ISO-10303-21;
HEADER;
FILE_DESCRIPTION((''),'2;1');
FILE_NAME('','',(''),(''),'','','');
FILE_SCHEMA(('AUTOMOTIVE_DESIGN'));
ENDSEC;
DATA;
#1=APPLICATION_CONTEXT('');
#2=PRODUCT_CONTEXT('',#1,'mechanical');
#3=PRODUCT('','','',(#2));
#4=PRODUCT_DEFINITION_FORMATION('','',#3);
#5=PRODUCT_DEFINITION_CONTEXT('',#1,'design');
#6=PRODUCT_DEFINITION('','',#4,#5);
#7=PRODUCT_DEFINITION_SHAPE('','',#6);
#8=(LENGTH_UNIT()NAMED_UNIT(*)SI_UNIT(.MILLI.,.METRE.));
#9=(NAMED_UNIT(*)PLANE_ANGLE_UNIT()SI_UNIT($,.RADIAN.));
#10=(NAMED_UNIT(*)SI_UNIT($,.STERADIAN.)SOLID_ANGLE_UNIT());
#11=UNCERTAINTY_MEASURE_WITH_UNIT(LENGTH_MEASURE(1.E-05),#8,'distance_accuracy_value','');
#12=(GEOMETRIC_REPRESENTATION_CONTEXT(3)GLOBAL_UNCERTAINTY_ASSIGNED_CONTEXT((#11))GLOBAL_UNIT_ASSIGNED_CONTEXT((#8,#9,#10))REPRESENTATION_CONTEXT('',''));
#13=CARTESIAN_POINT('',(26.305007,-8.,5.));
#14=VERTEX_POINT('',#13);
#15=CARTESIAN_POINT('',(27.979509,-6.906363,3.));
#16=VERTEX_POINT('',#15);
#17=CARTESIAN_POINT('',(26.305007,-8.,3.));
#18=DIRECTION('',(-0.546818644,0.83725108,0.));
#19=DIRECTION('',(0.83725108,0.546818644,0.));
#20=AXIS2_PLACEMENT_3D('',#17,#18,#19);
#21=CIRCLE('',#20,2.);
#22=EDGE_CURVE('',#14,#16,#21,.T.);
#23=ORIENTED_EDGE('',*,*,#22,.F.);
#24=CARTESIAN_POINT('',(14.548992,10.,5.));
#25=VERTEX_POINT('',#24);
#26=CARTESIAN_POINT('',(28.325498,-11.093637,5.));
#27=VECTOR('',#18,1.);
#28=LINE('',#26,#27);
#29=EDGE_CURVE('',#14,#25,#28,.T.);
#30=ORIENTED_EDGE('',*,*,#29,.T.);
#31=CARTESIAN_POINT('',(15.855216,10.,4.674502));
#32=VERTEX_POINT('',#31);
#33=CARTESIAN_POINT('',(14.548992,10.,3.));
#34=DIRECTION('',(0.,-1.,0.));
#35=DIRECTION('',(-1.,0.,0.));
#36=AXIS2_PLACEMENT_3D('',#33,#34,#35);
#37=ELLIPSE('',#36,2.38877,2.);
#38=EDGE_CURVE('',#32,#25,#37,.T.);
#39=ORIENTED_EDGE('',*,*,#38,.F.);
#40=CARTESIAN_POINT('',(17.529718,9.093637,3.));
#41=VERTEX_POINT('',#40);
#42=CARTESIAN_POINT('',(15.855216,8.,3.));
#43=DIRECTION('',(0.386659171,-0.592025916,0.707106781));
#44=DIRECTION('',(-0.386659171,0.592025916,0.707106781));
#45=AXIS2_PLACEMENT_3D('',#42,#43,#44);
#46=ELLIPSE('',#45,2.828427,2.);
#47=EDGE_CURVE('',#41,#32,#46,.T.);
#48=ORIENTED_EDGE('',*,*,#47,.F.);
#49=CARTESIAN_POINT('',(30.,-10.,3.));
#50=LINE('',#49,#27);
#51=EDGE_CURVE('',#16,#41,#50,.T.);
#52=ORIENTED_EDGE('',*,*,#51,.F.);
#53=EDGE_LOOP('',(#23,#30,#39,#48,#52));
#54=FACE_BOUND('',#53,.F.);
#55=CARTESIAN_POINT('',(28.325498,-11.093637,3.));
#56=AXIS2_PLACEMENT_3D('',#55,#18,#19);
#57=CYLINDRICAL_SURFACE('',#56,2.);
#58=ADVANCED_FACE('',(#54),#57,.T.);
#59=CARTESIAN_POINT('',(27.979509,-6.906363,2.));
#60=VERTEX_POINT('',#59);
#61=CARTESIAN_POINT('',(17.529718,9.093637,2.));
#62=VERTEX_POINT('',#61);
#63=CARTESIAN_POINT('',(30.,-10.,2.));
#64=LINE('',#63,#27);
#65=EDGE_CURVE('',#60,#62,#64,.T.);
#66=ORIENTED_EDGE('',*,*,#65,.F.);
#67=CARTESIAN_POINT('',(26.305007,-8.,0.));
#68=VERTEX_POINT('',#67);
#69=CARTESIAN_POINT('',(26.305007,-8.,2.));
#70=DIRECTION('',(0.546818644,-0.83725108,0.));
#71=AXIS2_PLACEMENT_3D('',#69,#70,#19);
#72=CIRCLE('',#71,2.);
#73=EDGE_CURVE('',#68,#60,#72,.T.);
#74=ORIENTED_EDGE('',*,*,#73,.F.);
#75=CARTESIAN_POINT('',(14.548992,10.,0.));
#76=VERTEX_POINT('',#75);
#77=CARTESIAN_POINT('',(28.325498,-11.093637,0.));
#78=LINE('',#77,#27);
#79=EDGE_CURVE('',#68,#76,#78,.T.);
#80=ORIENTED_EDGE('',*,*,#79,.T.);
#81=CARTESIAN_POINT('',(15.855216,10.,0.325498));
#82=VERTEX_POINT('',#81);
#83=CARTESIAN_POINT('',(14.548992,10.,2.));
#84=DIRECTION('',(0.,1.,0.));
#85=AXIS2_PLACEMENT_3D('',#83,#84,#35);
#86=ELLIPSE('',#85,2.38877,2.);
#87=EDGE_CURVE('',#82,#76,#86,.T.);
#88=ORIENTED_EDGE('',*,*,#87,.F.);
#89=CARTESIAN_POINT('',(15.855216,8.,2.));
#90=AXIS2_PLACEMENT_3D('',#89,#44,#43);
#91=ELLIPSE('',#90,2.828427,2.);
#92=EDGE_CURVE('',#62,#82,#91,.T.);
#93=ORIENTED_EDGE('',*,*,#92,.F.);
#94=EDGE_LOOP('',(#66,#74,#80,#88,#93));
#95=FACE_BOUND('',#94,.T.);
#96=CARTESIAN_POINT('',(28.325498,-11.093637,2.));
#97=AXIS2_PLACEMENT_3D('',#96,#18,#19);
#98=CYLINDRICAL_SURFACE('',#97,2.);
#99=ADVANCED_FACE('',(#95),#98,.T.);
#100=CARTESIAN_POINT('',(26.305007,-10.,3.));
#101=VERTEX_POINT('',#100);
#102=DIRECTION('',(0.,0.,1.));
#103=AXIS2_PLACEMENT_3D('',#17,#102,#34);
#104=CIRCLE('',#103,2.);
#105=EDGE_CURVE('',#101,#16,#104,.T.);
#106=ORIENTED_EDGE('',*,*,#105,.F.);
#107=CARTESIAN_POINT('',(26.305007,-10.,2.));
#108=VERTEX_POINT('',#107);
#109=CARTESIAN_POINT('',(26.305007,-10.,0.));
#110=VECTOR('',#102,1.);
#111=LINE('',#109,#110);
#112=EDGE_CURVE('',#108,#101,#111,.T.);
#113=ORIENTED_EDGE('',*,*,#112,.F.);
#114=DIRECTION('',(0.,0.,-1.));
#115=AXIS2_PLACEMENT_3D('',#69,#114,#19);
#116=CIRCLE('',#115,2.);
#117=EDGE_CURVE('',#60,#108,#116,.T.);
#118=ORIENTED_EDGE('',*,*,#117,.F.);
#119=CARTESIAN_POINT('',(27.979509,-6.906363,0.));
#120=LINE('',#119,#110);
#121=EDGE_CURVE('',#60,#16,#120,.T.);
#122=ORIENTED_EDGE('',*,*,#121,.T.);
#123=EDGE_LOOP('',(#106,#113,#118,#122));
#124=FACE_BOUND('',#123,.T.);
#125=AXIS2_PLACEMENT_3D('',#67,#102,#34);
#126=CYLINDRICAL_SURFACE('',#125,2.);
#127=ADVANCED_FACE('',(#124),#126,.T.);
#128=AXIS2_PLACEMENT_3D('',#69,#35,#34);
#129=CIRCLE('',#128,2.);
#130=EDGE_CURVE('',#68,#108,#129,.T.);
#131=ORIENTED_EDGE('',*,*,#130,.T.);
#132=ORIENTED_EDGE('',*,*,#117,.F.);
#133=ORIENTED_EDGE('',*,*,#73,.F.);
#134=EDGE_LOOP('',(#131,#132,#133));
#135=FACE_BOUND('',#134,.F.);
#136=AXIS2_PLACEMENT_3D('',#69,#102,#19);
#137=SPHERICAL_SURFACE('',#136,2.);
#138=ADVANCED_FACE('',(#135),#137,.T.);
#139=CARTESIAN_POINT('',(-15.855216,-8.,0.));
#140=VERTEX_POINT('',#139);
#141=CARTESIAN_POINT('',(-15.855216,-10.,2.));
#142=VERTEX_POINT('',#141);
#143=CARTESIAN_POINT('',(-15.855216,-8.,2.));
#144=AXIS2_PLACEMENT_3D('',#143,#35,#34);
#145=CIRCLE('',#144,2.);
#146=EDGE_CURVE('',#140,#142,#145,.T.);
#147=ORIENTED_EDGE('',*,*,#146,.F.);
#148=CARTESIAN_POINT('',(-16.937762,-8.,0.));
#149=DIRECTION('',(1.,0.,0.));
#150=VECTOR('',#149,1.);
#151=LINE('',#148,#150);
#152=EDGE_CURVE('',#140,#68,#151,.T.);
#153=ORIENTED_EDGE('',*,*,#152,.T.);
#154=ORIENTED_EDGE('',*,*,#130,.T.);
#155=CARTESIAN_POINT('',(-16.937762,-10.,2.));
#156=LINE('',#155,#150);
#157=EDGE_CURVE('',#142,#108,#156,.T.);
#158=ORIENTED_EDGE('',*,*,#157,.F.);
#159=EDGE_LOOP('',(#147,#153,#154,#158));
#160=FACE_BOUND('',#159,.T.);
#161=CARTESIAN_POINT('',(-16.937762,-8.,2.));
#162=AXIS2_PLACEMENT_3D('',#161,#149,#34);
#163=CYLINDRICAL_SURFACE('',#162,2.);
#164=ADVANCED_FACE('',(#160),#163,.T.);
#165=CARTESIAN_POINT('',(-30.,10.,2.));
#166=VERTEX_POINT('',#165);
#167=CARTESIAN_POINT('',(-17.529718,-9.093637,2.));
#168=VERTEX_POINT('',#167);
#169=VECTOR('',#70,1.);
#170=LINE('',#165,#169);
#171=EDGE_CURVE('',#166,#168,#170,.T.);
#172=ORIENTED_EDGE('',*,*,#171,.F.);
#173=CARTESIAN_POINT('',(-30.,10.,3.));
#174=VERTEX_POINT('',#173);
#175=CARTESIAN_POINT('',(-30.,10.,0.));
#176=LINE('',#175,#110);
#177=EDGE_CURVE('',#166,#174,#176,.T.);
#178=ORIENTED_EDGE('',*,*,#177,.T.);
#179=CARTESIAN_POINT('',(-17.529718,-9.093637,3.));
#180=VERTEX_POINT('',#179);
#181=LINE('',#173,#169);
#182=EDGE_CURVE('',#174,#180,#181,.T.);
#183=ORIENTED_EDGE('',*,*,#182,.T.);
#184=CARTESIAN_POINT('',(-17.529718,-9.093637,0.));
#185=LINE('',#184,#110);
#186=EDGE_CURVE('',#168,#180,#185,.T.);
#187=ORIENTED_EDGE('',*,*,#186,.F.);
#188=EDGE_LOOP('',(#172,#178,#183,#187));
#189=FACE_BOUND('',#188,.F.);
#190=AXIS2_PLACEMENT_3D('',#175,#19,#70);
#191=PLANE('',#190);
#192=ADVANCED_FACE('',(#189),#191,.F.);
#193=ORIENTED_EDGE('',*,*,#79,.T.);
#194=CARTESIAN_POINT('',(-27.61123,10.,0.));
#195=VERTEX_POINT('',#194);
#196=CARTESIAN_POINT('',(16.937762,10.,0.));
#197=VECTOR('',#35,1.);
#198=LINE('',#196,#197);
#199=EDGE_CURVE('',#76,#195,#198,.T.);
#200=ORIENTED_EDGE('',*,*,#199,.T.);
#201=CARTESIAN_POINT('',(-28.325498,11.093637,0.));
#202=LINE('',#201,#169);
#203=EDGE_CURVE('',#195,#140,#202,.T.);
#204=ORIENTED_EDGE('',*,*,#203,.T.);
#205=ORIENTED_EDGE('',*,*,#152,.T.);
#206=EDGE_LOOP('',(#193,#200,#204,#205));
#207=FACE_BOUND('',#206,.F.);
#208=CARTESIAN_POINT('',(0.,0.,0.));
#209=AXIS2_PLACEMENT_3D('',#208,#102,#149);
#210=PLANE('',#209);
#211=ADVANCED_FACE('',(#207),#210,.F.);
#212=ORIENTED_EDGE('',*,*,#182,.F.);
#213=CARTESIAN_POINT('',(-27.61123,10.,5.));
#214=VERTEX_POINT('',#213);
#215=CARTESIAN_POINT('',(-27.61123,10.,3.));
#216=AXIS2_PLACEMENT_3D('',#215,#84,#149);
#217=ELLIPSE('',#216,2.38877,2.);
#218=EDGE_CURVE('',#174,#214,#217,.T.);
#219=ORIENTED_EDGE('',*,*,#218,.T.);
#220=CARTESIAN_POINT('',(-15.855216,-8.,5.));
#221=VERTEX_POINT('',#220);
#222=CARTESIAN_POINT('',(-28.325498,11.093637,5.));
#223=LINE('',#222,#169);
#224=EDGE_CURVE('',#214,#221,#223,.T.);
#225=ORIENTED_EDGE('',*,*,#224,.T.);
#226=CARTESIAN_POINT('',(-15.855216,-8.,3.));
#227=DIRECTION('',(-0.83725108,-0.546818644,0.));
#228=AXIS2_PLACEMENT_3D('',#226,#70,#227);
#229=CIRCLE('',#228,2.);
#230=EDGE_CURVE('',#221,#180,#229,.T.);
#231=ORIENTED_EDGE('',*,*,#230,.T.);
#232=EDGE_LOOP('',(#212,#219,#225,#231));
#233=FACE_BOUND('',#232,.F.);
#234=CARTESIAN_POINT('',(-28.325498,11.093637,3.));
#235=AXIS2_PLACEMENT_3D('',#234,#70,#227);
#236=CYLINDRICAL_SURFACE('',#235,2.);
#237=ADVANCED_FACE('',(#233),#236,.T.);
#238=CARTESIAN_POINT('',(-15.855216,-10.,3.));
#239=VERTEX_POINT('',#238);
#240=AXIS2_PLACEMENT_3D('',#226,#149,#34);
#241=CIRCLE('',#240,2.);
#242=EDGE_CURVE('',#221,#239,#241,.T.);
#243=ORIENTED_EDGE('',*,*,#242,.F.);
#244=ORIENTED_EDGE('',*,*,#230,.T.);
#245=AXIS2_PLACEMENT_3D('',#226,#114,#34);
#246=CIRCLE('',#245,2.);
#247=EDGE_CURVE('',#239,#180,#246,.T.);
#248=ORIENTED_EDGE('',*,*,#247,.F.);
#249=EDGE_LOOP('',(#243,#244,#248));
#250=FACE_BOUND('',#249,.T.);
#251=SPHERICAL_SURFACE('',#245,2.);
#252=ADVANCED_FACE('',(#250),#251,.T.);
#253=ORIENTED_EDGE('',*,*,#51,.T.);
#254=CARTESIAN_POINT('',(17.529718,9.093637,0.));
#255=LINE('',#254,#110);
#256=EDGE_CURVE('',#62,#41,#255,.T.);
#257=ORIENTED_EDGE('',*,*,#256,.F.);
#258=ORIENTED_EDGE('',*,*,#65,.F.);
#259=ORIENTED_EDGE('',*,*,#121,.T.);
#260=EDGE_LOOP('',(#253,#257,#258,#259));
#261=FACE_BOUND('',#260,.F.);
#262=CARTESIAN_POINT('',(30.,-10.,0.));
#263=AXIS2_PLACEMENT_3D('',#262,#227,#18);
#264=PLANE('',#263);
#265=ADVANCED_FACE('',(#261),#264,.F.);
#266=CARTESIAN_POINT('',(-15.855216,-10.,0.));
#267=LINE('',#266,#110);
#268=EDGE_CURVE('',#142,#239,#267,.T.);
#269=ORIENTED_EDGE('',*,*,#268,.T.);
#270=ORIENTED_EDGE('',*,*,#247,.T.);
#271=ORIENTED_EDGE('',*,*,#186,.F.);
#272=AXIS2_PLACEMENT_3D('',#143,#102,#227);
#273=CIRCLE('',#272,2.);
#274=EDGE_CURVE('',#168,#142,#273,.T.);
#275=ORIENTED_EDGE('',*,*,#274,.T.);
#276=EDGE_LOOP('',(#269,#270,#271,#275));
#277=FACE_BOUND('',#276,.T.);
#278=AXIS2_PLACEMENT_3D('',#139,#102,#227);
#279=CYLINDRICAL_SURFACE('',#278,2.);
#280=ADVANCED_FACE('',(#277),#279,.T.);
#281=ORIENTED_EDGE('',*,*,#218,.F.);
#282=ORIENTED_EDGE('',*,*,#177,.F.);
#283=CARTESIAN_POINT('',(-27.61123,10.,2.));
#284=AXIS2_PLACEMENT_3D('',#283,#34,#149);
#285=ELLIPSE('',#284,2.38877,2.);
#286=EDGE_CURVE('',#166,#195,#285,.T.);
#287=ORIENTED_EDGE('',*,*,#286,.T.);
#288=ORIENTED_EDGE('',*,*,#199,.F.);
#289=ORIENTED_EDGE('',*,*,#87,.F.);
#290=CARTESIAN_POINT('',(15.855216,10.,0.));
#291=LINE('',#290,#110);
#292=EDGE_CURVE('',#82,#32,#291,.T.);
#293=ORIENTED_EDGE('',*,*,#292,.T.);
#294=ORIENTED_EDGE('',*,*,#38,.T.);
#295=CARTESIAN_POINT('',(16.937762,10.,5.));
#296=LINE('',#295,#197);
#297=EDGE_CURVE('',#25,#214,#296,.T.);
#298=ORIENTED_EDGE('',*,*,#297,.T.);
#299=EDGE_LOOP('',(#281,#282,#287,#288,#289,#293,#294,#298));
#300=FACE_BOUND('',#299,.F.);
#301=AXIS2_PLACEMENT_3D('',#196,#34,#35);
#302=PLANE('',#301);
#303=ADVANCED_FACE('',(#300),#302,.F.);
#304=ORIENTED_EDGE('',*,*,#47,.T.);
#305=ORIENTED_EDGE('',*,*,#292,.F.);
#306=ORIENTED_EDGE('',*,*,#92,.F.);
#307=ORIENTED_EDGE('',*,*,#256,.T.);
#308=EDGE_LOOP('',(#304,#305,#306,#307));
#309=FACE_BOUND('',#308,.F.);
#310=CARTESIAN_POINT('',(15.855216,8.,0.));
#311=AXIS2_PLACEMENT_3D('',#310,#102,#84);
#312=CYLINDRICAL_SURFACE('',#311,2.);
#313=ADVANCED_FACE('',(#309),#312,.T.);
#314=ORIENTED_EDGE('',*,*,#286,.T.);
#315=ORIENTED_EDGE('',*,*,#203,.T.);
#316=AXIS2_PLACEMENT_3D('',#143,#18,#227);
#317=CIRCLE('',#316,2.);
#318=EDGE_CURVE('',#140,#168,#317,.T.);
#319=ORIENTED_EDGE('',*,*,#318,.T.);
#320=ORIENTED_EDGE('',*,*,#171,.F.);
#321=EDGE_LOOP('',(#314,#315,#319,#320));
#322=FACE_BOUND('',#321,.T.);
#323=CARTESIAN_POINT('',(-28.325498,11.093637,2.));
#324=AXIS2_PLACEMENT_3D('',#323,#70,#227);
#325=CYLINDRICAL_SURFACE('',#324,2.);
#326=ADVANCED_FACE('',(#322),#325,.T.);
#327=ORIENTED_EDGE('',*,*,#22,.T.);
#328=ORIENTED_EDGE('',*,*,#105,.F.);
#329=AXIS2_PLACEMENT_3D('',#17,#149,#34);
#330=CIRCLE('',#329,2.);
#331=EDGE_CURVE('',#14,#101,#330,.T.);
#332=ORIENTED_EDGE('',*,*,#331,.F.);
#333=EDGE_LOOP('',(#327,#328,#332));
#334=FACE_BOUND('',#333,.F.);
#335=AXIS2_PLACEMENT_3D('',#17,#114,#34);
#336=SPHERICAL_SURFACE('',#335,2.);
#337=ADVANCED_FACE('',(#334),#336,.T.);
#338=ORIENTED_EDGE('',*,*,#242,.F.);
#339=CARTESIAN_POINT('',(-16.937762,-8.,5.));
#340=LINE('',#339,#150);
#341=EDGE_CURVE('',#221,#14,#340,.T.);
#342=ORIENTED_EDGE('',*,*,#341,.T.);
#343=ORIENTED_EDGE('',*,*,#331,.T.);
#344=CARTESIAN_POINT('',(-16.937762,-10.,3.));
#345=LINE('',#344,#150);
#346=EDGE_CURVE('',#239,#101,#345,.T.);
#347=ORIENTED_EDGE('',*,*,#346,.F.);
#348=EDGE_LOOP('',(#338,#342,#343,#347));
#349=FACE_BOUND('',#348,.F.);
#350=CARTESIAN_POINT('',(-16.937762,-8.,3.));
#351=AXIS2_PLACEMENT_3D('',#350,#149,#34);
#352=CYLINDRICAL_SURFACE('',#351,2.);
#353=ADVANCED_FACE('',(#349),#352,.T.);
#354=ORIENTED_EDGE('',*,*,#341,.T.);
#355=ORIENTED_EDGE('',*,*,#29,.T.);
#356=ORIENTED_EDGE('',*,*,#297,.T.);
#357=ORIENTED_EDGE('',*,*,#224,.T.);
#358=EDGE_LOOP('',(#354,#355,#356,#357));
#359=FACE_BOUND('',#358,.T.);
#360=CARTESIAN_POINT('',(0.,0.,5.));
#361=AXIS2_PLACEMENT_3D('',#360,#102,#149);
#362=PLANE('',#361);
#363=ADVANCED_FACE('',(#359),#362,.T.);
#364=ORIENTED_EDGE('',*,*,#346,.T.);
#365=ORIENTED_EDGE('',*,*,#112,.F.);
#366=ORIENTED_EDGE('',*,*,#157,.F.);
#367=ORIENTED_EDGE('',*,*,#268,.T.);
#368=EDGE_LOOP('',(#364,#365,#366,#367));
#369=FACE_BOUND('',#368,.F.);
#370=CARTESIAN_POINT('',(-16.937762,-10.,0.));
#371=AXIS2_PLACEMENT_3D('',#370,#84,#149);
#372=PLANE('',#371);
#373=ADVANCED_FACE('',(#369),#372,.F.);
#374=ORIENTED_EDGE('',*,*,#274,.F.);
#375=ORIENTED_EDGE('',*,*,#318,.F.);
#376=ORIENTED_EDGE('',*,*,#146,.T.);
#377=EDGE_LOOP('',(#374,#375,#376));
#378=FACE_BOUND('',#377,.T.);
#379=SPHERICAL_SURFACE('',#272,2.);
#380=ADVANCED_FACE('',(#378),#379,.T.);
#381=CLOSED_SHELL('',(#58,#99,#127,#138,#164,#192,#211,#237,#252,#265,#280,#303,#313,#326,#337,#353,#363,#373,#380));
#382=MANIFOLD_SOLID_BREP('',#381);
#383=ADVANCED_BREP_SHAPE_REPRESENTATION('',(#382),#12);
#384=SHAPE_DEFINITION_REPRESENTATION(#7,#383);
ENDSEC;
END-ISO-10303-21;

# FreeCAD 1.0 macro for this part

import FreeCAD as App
import Part
import Sketcher
from FreeCAD import Vector


def edges_at(feature, points):
    """Names of the edges that pass closest to the given points."""
    edges = feature.Shape.Edges
    near = lambda p: min(range(len(edges)), key=lambda i: edges[i].distToShape(Part.Vertex(*p))[0])
    return sorted({f"Edge{near(p) + 1}" for p in points})

doc = App.newDocument("Part")
body = doc.addObject("PartDesign::Body", "Body")

# Sketch on XY plane
sketch1 = body.newObject("Sketcher::SketchObject", "Sketch")
sketch1.AttachmentSupport = (doc.getObject("XY_Plane"), [""])
sketch1.MapMode = "FlatFace"
sketch1.addGeometry(Part.LineSegment(Vector(17, 10, 0), Vector(-30, 10, 0)), False)
sketch1.addGeometry(Part.LineSegment(Vector(-30, 10, 0), Vector(-17, -10, 0)), False)
sketch1.addGeometry(Part.LineSegment(Vector(-17, -10, 0), Vector(30, -10, 0)), False)
sketch1.addGeometry(Part.LineSegment(Vector(30, -10, 0), Vector(17, 10, 0)), False)
sketch1.addConstraint(Sketcher.Constraint("Coincident", 0, 2, 1, 1))
sketch1.addConstraint(Sketcher.Constraint("Coincident", 1, 2, 2, 1))
sketch1.addConstraint(Sketcher.Constraint("Coincident", 2, 2, 3, 1))
sketch1.addConstraint(Sketcher.Constraint("Coincident", 3, 2, 0, 1))
sketch1.addConstraint(Sketcher.Constraint("Horizontal", 0))
sketch1.addConstraint(Sketcher.Constraint("Horizontal", 2))
sketch1.addConstraint(Sketcher.Constraint("Symmetric", 0, 2, 2, 2, -1, 1))
sketch1.addConstraint(Sketcher.Constraint("Parallel", 1, 3))
sketch1.addConstraint(Sketcher.Constraint("DistanceX", 0, 2, -1, 1, 30.0))
sketch1.addConstraint(Sketcher.Constraint("DistanceY", -1, 1, 0, 2, 10.0))
sketch1.addConstraint(Sketcher.Constraint("DistanceX", 0, 2, 0, 1, 46.937762))
pad1 = body.newObject("PartDesign::Pad", "Pad")
pad1.Profile = sketch1
pad1.Length = 5
doc.recompute()

fillet = body.newObject("PartDesign::Fillet", "Fillet")
fillet.Base = (pad1, edges_at(pad1, [
    (6.531, -10, 5),
    (-23.469, 0, 5),
    (-23.469, 0, 0),
    (23.469, 0, 5),
    (30, -10, 2.5),
    (16.938, 10, 2.5),
    (23.469, 0, 0),
    (6.531, -10, 0),
    (-16.938, -10, 2.5),
]))
fillet.Radius = 2

doc.recompute()
